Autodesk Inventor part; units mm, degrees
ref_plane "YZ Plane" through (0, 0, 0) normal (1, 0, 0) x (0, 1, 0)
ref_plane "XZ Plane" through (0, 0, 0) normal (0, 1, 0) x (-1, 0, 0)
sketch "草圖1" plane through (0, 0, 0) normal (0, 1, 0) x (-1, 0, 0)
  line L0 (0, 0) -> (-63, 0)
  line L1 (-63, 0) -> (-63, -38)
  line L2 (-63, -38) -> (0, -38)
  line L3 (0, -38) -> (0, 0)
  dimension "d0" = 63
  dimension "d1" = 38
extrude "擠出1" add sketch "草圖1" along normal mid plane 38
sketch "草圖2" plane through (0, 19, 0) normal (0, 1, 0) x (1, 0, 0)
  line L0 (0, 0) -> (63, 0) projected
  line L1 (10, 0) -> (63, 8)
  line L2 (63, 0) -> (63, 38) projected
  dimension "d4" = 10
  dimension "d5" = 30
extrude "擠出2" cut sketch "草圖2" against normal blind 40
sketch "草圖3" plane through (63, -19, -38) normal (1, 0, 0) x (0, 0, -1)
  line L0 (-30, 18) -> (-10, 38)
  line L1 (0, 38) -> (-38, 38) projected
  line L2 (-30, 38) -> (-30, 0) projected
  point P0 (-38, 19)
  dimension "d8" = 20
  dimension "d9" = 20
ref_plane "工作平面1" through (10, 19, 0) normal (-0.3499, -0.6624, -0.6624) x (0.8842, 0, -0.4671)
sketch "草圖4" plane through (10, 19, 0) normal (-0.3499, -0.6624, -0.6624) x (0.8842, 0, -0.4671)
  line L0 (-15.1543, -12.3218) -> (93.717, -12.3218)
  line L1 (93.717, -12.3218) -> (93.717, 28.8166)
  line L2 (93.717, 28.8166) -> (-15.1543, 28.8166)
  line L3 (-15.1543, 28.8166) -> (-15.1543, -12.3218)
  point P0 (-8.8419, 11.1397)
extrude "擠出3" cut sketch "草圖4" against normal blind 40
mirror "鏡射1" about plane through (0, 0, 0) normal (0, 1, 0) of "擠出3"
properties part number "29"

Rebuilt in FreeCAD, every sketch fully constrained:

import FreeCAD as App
import Part
import Sketcher

V = App.Vector
Q = App.Units.Quantity


def add_polygon(sketch, points):
    """Adds a closed chain of lines whose ends are joined by coincident constraints."""
    first, n = sketch.GeometryCount, len(points)
    for a, b in zip(points, points[1:] + points[:1]):
        sketch.addGeometry(Part.LineSegment(App.Vector(*a, 0), App.Vector(*b, 0)), False)
    for i in range(n):
        sketch.addConstraint(Sketcher.Constraint("Coincident", first + i, 2, first + (i + 1) % n, 1))

doc = App.newDocument("Part")
params = doc.addObject("Spreadsheet::Sheet", "Params")
for row, (alias, value) in enumerate([
    ("sketch1_width", "63 mm"),
    ("sketch1_height", "38 mm"),
    ("pad1_length", "38 mm"),
    ("sketch2_width", "53 mm"),
    ("sketch2_height", "8 mm"),
    ("pocket1_length", "40 mm"),
    ("pocket2_length", "40 mm"),
], start=1):
    params.set(f"A{row}", alias)
    params.set(f"B{row}", "=" + value)
    params.setAlias(f"B{row}", alias)

body = doc.addObject("PartDesign::Body", "Body")

# Sketch on XZ plane
sketch1 = body.newObject("Sketcher::SketchObject", "Sketch")
sketch1.AttachmentSupport = (doc.getObject("XZ_Plane"), [""])
sketch1.MapMode = "FlatFace"
add_polygon(sketch1, [(0, -38), (0, 0), (63, 0), (63, -38)])  # lines 0-3
sketch1.addConstraint(Sketcher.Constraint("Vertical", 0))
sketch1.addConstraint(Sketcher.Constraint("Horizontal", 1))
sketch1.addConstraint(Sketcher.Constraint("Vertical", 2))
sketch1.addConstraint(Sketcher.Constraint("Horizontal", 3))
sketch1.addConstraint(Sketcher.Constraint("Coincident", 0, 2, -1, 1))
sketch1.addConstraint(Sketcher.Constraint("DistanceX", 1, 1, 1, 2, Q("63 mm")))
sketch1.addConstraint(Sketcher.Constraint("DistanceY", 0, 1, 0, 2, Q("38 mm")))
sketch1.setExpression("Constraints[9]", "Params.sketch1_width")
sketch1.setExpression("Constraints[10]", "Params.sketch1_height")
pad1 = body.newObject("PartDesign::Pad", "Pad")
pad1.Profile = sketch1
pad1.setExpression("Length", "Params.pad1_length")
pad1.Midplane = True

# Sketch on XZ plane
sketch2 = body.newObject("Sketcher::SketchObject", "Sketch001")
sketch2.AttachmentSupport = (doc.getObject("XZ_Plane"), [""])
sketch2.MapMode = "FlatFace"
sketch2.AttachmentOffset = App.Placement(V(0, 0, -19), App.Rotation())
add_polygon(sketch2, [(63, -8), (10, 0), (63, 0)])  # lines 0-2
sketch2.addConstraint(Sketcher.Constraint("Horizontal", 1))
sketch2.addConstraint(Sketcher.Constraint("Vertical", 2))
sketch2.addConstraint(Sketcher.Constraint("PointOnObject", 0, 2, -1))
sketch2.addConstraint(Sketcher.Constraint("DistanceX", -1, 1, 0, 2, Q("10 mm")))
sketch2.addConstraint(Sketcher.Constraint("DistanceX", 1, 1, 1, 2, Q("53 mm")))
sketch2.addConstraint(Sketcher.Constraint("DistanceY", 2, 2, 2, 1, Q("8 mm")))
sketch2.setExpression("Constraints[7]", "Params.sketch2_width")
sketch2.setExpression("Constraints[8]", "Params.sketch2_height")
pocket1 = body.newObject("PartDesign::Pocket", "Pocket")
pocket1.Profile = sketch2
pocket1.setExpression("Length", "Params.pocket1_length")
pocket1.Reversed = True

# Sketch on an angled plane
sketch3 = body.newObject("Sketcher::SketchObject", "Sketch002")
sketch3.Placement = App.Placement(V(10, 19, 0), App.Rotation(V(0.884212424, 0.000016865, -0.467084992), V(0.309411746, -0.749143765, 0.585702989), V(-0.349903931, -0.662407442, -0.662407442), "ZXY"))
add_polygon(sketch3, [(-15.1543, 28.8166), (-15.1543, -12.3218), (93.717, -12.3218), (93.717, 28.8166)])  # lines 0-3
sketch3.addConstraint(Sketcher.Constraint("Vertical", 0))
sketch3.addConstraint(Sketcher.Constraint("Horizontal", 1))
sketch3.addConstraint(Sketcher.Constraint("Vertical", 2))
sketch3.addConstraint(Sketcher.Constraint("Horizontal", 3))
sketch3.addConstraint(Sketcher.Constraint("DistanceX", 1, 1, 1, 2, Q("108.8713 mm")))
sketch3.addConstraint(Sketcher.Constraint("DistanceY", 0, 2, 0, 1, Q("41.1384 mm")))
sketch3.addConstraint(Sketcher.Constraint("DistanceX", -1, 1, 1, 2, Q("93.717 mm")))
sketch3.addConstraint(Sketcher.Constraint("DistanceY", 0, 2, -1, 1, Q("12.3218 mm")))
pocket2 = body.newObject("PartDesign::Pocket", "Pocket001")
pocket2.Profile = sketch3
pocket2.setExpression("Length", "Params.pocket2_length")
doc.recompute()

mirrored = body.newObject("PartDesign::Mirrored", "Mirrored")
mirrored.Originals = [pocket2]
mirrored.MirrorPlane = (doc.getObject("XZ_Plane"), [""])
body.Tip = mirrored

doc.recompute()
